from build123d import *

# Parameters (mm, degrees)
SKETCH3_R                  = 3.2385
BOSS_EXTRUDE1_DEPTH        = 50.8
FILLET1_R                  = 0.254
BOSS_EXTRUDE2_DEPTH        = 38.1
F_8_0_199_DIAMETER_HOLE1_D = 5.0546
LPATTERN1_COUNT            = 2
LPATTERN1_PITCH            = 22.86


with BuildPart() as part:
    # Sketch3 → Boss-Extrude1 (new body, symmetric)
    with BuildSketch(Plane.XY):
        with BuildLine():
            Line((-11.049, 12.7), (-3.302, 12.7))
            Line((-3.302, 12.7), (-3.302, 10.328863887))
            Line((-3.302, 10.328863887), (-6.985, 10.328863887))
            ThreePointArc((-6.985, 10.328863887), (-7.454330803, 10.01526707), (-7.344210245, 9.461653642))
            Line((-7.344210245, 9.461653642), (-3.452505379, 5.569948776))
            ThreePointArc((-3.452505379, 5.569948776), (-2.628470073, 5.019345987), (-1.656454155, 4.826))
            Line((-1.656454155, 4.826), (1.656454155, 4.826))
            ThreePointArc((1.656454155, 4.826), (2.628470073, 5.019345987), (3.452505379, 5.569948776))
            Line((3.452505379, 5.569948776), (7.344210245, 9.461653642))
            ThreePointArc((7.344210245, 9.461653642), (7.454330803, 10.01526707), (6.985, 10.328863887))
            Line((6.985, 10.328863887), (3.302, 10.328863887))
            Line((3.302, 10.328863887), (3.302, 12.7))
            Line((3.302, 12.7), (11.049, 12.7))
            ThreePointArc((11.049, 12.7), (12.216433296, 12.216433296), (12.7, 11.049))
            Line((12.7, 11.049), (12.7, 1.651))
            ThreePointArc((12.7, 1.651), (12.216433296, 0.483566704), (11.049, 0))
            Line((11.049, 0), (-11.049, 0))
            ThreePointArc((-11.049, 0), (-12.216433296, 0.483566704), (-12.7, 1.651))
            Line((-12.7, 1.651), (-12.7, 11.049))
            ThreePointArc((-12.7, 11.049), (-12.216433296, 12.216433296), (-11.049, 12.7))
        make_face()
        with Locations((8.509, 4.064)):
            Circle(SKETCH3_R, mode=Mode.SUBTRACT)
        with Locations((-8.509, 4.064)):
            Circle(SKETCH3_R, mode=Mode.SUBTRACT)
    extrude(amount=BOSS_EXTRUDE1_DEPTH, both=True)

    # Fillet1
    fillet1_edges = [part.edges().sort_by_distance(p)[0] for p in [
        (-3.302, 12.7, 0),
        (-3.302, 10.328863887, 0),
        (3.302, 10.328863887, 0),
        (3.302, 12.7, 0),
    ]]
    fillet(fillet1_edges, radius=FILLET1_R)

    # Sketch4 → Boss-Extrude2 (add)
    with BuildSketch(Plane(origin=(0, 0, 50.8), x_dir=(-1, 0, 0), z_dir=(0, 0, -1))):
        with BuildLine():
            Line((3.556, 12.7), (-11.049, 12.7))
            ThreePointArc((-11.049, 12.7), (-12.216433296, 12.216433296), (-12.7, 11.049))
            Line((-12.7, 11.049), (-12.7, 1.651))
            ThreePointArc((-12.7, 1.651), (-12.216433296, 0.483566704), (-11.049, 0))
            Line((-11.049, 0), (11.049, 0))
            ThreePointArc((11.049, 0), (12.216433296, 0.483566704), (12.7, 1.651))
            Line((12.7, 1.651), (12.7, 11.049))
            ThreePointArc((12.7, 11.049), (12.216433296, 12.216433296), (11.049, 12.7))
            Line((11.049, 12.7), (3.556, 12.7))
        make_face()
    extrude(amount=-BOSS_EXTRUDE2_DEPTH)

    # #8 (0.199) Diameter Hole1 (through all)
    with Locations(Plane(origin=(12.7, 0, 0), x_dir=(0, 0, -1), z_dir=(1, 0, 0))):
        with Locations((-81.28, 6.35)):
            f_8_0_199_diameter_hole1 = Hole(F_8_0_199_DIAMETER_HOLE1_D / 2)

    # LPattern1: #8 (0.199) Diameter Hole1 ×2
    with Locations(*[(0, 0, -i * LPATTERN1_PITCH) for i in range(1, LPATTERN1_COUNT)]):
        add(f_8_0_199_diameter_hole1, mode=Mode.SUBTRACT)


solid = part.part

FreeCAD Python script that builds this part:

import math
import FreeCAD as App
import Part
import Sketcher
from FreeCAD import Vector
Q = App.Units.Quantity


def edges_at(feature, points):
    """Names of the edges that pass closest to the given points."""
    edges = feature.Shape.Edges
    near = lambda p: min(range(len(edges)), key=lambda i: edges[i].distToShape(Part.Vertex(*p))[0])
    return sorted({f"Edge{near(p) + 1}" for p in points})

doc = App.newDocument("Part")
body = doc.addObject("PartDesign::Body", "Body")

# Sketch on XY plane
sketch1 = body.newObject("Sketcher::SketchObject", "Sketch")
sketch1.AttachmentSupport = (doc.getObject("XY_Plane"), [""])
sketch1.MapMode = "FlatFace"
sketch1.addGeometry(Part.LineSegment(Vector(-3.3, 12.7, 0), Vector(-11, 12.7, 0)), False)
sketch1.addGeometry(Part.ArcOfCircle(Part.Circle(Vector(-11, 11, 0), Vector(0, 0, 1), 1.7), math.radians(90), math.radians(180)), False)
sketch1.addGeometry(Part.LineSegment(Vector(-12.7, 11, 0), Vector(-12.7, 1.7, 0)), False)
sketch1.addGeometry(Part.ArcOfCircle(Part.Circle(Vector(-11, 1.7, 0), Vector(0, 0, 1), 1.7), math.radians(180), math.radians(270)), False)
sketch1.addGeometry(Part.LineSegment(Vector(-11, 0, 0), Vector(11, 0, 0)), False)
sketch1.addGeometry(Part.ArcOfCircle(Part.Circle(Vector(11, 1.7, 0), Vector(0, 0, 1), 1.7), math.radians(-90), math.radians(0)), False)
sketch1.addGeometry(Part.LineSegment(Vector(12.7, 1.7, 0), Vector(12.7, 11, 0)), False)
sketch1.addGeometry(Part.ArcOfCircle(Part.Circle(Vector(11, 11, 0), Vector(0, 0, 1), 1.7), math.radians(0), math.radians(90)), False)
sketch1.addGeometry(Part.LineSegment(Vector(11, 12.7, 0), Vector(3.3, 12.7, 0)), False)
sketch1.addGeometry(Part.LineSegment(Vector(3.3, 12.7, 0), Vector(3.3, 10.3, 0)), False)
sketch1.addGeometry(Part.LineSegment(Vector(3.3, 10.3, 0), Vector(7, 10.3, 0)), False)
sketch1.addGeometry(Part.ArcOfCircle(Part.Circle(Vector(7, 9.8, 0), Vector(0, 0, 1), 0.5), math.radians(-45), math.radians(90)), False)
sketch1.addGeometry(Part.LineSegment(Vector(7.3, 9.5, 0), Vector(3.5, 5.6, 0)), False)
sketch1.addGeometry(Part.ArcOfCircle(Part.Circle(Vector(1.7, 7.4, 0), Vector(0, 0, 1), 2.5), math.radians(-90), math.radians(-45)), False)
sketch1.addGeometry(Part.LineSegment(Vector(1.7, 4.8, 0), Vector(-1.7, 4.8, 0)), False)
sketch1.addGeometry(Part.ArcOfCircle(Part.Circle(Vector(-1.7, 7.4, 0), Vector(0, 0, 1), 2.5), math.radians(-135), math.radians(-90)), False)
sketch1.addGeometry(Part.LineSegment(Vector(-3.5, 5.6, 0), Vector(-7.3, 9.5, 0)), False)
sketch1.addGeometry(Part.ArcOfCircle(Part.Circle(Vector(-7, 9.8, 0), Vector(0, 0, 1), 0.5), math.radians(90), math.radians(225)), False)
sketch1.addGeometry(Part.LineSegment(Vector(-7, 10.3, 0), Vector(-3.3, 10.3, 0)), False)
sketch1.addGeometry(Part.LineSegment(Vector(-3.3, 10.3, 0), Vector(-3.3, 12.7, 0)), False)
sketch1.addGeometry(Part.Circle(Vector(8.5, 4.1, 0), Vector(0, 0, 1), 3.2), False)
sketch1.addGeometry(Part.Circle(Vector(-8.5, 4.1, 0), Vector(0, 0, 1), 3.2), False)
sketch1.addConstraint(Sketcher.Constraint("Tangent", 0, 2, 1, 1))
sketch1.addConstraint(Sketcher.Constraint("Tangent", 1, 2, 2, 1))
sketch1.addConstraint(Sketcher.Constraint("Tangent", 2, 2, 3, 1))
sketch1.addConstraint(Sketcher.Constraint("Tangent", 3, 2, 4, 1))
sketch1.addConstraint(Sketcher.Constraint("Tangent", 4, 2, 5, 1))
sketch1.addConstraint(Sketcher.Constraint("Tangent", 5, 2, 6, 1))
sketch1.addConstraint(Sketcher.Constraint("Tangent", 6, 2, 7, 1))
sketch1.addConstraint(Sketcher.Constraint("Tangent", 7, 2, 8, 1))
sketch1.addConstraint(Sketcher.Constraint("Coincident", 8, 2, 9, 1))
sketch1.addConstraint(Sketcher.Constraint("Coincident", 9, 2, 10, 1))
sketch1.addConstraint(Sketcher.Constraint("Tangent", 10, 2, 11, 2))
sketch1.addConstraint(Sketcher.Constraint("Tangent", 11, 1, 12, 1))
sketch1.addConstraint(Sketcher.Constraint("Tangent", 12, 2, 13, 2))
sketch1.addConstraint(Sketcher.Constraint("Tangent", 13, 1, 14, 1))
sketch1.addConstraint(Sketcher.Constraint("Tangent", 14, 2, 15, 2))
sketch1.addConstraint(Sketcher.Constraint("Tangent", 15, 1, 16, 1))
sketch1.addConstraint(Sketcher.Constraint("Tangent", 16, 2, 17, 2))
sketch1.addConstraint(Sketcher.Constraint("Tangent", 17, 1, 18, 1))
sketch1.addConstraint(Sketcher.Constraint("Coincident", 18, 2, 19, 1))
sketch1.addConstraint(Sketcher.Constraint("Coincident", 19, 2, 0, 1))
sketch1.addConstraint(Sketcher.Constraint("Horizontal", 0))
sketch1.addConstraint(Sketcher.Constraint("Vertical", 2))
sketch1.addConstraint(Sketcher.Constraint("Horizontal", 4))
sketch1.addConstraint(Sketcher.Constraint("Vertical", 6))
sketch1.addConstraint(Sketcher.Constraint("Horizontal", 8))
sketch1.addConstraint(Sketcher.Constraint("Vertical", 9))
sketch1.addConstraint(Sketcher.Constraint("Horizontal", 10))
sketch1.addConstraint(Sketcher.Constraint("Horizontal", 14))
sketch1.addConstraint(Sketcher.Constraint("Horizontal", 18))
sketch1.addConstraint(Sketcher.Constraint("Vertical", 19))
sketch1.addConstraint(Sketcher.Constraint("Equal", 1, 3))
sketch1.addConstraint(Sketcher.Constraint("Equal", 3, 5))
sketch1.addConstraint(Sketcher.Constraint("Equal", 5, 7))
sketch1.addConstraint(Sketcher.Constraint("Equal", 13, 15))
sketch1.addConstraint(Sketcher.Constraint("Equal", 11, 17))
sketch1.addConstraint(Sketcher.Constraint("Equal", 20, 21))
sketch1.addConstraint(Sketcher.Constraint("Symmetric", 3, 2, 4, 2, -1, 1))
sketch1.addConstraint(Sketcher.Constraint("Symmetric", 11, 3, 17, 3, -2))
sketch1.addConstraint(Sketcher.Constraint("Symmetric", 20, 3, 21, 3, -2))
sketch1.addConstraint(Sketcher.Constraint("Symmetric", 8, 2, 19, 2, -2))
sketch1.addConstraint(Sketcher.Constraint("Perpendicular", 12, 16))
sketch1.addConstraint(Sketcher.Constraint("Horizontal", 12, 2, 15, 1))
sketch1.addConstraint(Sketcher.Constraint("Radius", 13, Q("0.1 in")))
sketch1.addConstraint(Sketcher.Constraint("Radius", 11, Q("0.02 in")))
sketch1.addConstraint(Sketcher.Constraint("Diameter", 20, Q("0.255 in")))
sketch1.addConstraint(Sketcher.Constraint("Radius", 1, Q("0.065 in")))
sketch1.addConstraint(Sketcher.Constraint("DistanceX", 4, 1, 4, 2, Q("0.87 in")))
sketch1.addConstraint(Sketcher.Constraint("DistanceY", 2, 2, 2, 1, Q("0.37 in")))
sketch1.addConstraint(Sketcher.Constraint("DistanceX", 20, 3, 5, 3, Q("0.1 in")))
sketch1.addConstraint(Sketcher.Constraint("DistanceX", 0, 2, 0, 1, Q("0.305 in")))
sketch1.addConstraint(Sketcher.Constraint("DistanceX", 10, 1, 10, 2, Q("0.145 in")))
sketch1.addConstraint(Sketcher.Constraint("DistanceY", -1, 1, 13, 3, Q("0.29 in")))
sketch1.addConstraint(Sketcher.Constraint("DistanceY", -1, 1, 20, 3, Q("0.16 in")))
sketch1.addConstraint(Sketcher.Constraint("Distance", 12, 5.503702))
pad1 = body.newObject("PartDesign::Pad", "Pad")
pad1.Profile = sketch1
pad1.Length = Q("4 in")
pad1.Midplane = True
doc.recompute()

fillet = body.newObject("PartDesign::Fillet", "Fillet")
fillet.Base = (pad1, edges_at(pad1, [
    (-3.302, 12.7, 0),
    (-3.302, 10.329, 0),
    (3.302, 10.329, 0),
    (3.302, 12.7, 0),
]))
fillet.Radius = Q("0.01 in")

# Sketch on XY plane
sketch2 = body.newObject("Sketcher::SketchObject", "Sketch001")
sketch2.AttachmentSupport = (doc.getObject("XY_Plane"), [""])
sketch2.MapMode = "FlatFace"
sketch2.AttachmentOffset = App.Placement(Vector(0, 0, 2 * 25.4), App.Rotation())
sketch2.addGeometry(Part.ArcOfCircle(Part.Circle(Vector(11, 11, 0), Vector(0, 0, 1), 1.7), math.radians(0), math.radians(90)), False)
sketch2.addGeometry(Part.LineSegment(Vector(12.7, 11, 0), Vector(12.7, 1.7, 0)), False)
sketch2.addGeometry(Part.ArcOfCircle(Part.Circle(Vector(11, 1.7, 0), Vector(0, 0, 1), 1.7), math.radians(-90), math.radians(0)), False)
sketch2.addGeometry(Part.LineSegment(Vector(11, 0, 0), Vector(-11, 0, 0)), False)
sketch2.addGeometry(Part.ArcOfCircle(Part.Circle(Vector(-11, 1.7, 0), Vector(0, 0, 1), 1.7), math.radians(180), math.radians(270)), False)
sketch2.addGeometry(Part.LineSegment(Vector(-12.7, 1.7, 0), Vector(-12.7, 11, 0)), False)
sketch2.addGeometry(Part.ArcOfCircle(Part.Circle(Vector(-11, 11, 0), Vector(0, 0, 1), 1.7), math.radians(90), math.radians(180)), False)
sketch2.addGeometry(Part.LineSegment(Vector(-11, 12.7, 0), Vector(11, 12.7, 0)), False)
sketch2.addConstraint(Sketcher.Constraint("Tangent", 0, 1, 1, 1))
sketch2.addConstraint(Sketcher.Constraint("Tangent", 1, 2, 2, 2))
sketch2.addConstraint(Sketcher.Constraint("Tangent", 2, 1, 3, 1))
sketch2.addConstraint(Sketcher.Constraint("Tangent", 3, 2, 4, 2))
sketch2.addConstraint(Sketcher.Constraint("Tangent", 4, 1, 5, 1))
sketch2.addConstraint(Sketcher.Constraint("Tangent", 5, 2, 6, 2))
sketch2.addConstraint(Sketcher.Constraint("Tangent", 6, 1, 7, 1))
sketch2.addConstraint(Sketcher.Constraint("Tangent", 7, 2, 0, 2))
sketch2.addConstraint(Sketcher.Constraint("Vertical", 1))
sketch2.addConstraint(Sketcher.Constraint("Horizontal", 3))
sketch2.addConstraint(Sketcher.Constraint("Vertical", 5))
sketch2.addConstraint(Sketcher.Constraint("Horizontal", 7))
sketch2.addConstraint(Sketcher.Constraint("Equal", 0, 2))
sketch2.addConstraint(Sketcher.Constraint("Equal", 2, 4))
sketch2.addConstraint(Sketcher.Constraint("Equal", 4, 6))
sketch2.addConstraint(Sketcher.Constraint("Symmetric", 2, 1, 3, 2, -1, 1))
sketch2.addConstraint(Sketcher.Constraint("Radius", 0, Q("0.065 in")))
sketch2.addConstraint(Sketcher.Constraint("DistanceX", 3, 2, 3, 1, Q("0.87 in")))
sketch2.addConstraint(Sketcher.Constraint("DistanceY", 1, 2, 1, 1, Q("0.37 in")))
pad2 = body.newObject("PartDesign::Pad", "Pad001")
pad2.Profile = sketch2
pad2.Length = Q("1.5 in")

# Sketch on YZ plane
sketch3 = body.newObject("Sketcher::SketchObject", "Sketch002")
sketch3.AttachmentSupport = (doc.getObject("YZ_Plane"), [""])
sketch3.MapMode = "FlatFace"
sketch3.AttachmentOffset = App.Placement(Vector(0, 0, 0.5 * 25.4), App.Rotation())
sketch3.addGeometry(Part.Circle(Vector(6.3, 81.3, 0), Vector(0, 0, 1), 2.5), False)
sketch3.addConstraint(Sketcher.Constraint("Diameter", 0, Q("0.199 in")))
sketch3.addConstraint(Sketcher.Constraint("DistanceY", -1, 1, 0, 3, Q("3.2 in")))
sketch3.addConstraint(Sketcher.Constraint("DistanceX", -1, 1, 0, 3, Q("0.25 in")))
doc.recompute()
hole = body.newObject("PartDesign::Hole", "Hole")
hole.Profile = sketch3
hole.ThreadType = "None"
hole.Diameter = Q("0.199 in")
hole.DepthType = "ThroughAll"
doc.recompute()

linearpattern = body.newObject("PartDesign::LinearPattern", "LinearPattern")
linearpattern.Originals = [hole]
linearpattern.Direction = (doc.getObject("Z_Axis"), [""])
linearpattern.Mode = "offset"
linearpattern.Offset = Q("0.9 in")
linearpattern.Occurrences = 2
linearpattern.Reversed = True
body.Tip = linearpattern

doc.recompute()
